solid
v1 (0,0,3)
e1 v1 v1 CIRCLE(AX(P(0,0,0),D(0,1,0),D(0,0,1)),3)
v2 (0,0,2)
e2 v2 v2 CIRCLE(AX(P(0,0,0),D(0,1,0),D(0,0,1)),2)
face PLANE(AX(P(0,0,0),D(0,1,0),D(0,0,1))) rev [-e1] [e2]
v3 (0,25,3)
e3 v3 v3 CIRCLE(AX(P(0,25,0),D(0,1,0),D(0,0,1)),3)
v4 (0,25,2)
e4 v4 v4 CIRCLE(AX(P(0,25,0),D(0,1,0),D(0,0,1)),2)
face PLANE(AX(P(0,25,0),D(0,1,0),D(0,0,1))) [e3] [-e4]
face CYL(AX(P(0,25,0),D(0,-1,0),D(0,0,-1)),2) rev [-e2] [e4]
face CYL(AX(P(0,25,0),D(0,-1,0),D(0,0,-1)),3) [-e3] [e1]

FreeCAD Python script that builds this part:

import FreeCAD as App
import Part
import Sketcher
Q = App.Units.Quantity

doc = App.newDocument("Part")
body = doc.addObject("PartDesign::Body", "Body")

sketch1 = body.newObject("Sketcher::SketchObject", "Sketch")
sketch1.AttachmentSupport = (doc.getObject("XZ_Plane"), [""])
sketch1.MapMode = "FlatFace"
sketch1.addGeometry(Part.Circle(App.Vector(0, 0, 0), App.Vector(0, 0, 1), 3), False)
sketch1.addGeometry(Part.Circle(App.Vector(0, 0, 0), App.Vector(0, 0, 1), 2), False)
sketch1.addConstraint(Sketcher.Constraint("Coincident", 0, 3, -1, 1))
sketch1.addConstraint(Sketcher.Constraint("Coincident", 1, 3, -1, 1))
sketch1.addConstraint(Sketcher.Constraint("Diameter", 0, Q("6 mm")))
sketch1.addConstraint(Sketcher.Constraint("Diameter", 1, Q("4 mm")))
pad1 = body.newObject("PartDesign::Pad", "Pad")
pad1.Profile = sketch1
pad1.Length = 25
pad1.Reversed = True

doc.recompute()
